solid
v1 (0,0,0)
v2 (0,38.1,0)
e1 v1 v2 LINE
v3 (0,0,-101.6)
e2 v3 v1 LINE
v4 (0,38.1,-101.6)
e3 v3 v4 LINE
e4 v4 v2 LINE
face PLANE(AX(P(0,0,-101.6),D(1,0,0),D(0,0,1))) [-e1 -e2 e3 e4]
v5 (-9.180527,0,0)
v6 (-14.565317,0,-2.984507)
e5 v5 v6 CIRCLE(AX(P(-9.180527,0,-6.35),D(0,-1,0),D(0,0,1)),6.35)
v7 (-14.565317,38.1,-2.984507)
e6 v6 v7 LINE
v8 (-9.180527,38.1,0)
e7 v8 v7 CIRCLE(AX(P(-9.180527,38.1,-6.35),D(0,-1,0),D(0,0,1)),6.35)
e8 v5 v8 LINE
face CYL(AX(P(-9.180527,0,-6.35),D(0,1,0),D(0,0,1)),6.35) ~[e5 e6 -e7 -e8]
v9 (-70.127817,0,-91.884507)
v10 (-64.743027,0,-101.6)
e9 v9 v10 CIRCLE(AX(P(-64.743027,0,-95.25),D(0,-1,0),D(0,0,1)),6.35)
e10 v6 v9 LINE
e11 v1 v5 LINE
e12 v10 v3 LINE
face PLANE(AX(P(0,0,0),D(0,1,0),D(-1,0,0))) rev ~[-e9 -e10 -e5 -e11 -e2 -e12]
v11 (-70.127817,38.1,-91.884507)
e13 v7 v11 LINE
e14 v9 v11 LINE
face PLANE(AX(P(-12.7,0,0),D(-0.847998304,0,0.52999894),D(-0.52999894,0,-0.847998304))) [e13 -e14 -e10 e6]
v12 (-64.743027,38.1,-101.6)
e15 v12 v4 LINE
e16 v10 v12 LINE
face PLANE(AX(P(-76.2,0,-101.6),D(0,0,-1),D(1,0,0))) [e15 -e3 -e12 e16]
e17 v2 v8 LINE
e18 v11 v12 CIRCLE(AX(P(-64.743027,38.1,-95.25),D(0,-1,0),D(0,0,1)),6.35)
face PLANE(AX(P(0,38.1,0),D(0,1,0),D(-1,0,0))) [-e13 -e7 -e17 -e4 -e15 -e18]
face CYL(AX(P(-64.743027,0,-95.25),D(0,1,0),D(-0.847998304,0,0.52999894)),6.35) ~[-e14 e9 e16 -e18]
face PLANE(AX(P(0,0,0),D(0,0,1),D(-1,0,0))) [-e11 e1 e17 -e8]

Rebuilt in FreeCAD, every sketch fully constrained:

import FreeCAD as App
import Part
import Sketcher
from FreeCAD import Vector
Q = App.Units.Quantity


def edges_at(feature, points):
    """Names of the edges that pass closest to the given points."""
    edges = feature.Shape.Edges
    near = lambda p: min(range(len(edges)), key=lambda i: edges[i].distToShape(Part.Vertex(*p))[0])
    return sorted({f"Edge{near(p) + 1}" for p in points})


def add_polygon(sketch, points):
    """Adds a closed chain of lines whose ends are joined by coincident constraints."""
    first, n = sketch.GeometryCount, len(points)
    for a, b in zip(points, points[1:] + points[:1]):
        sketch.addGeometry(Part.LineSegment(App.Vector(*a, 0), App.Vector(*b, 0)), False)
    for i in range(n):
        sketch.addConstraint(Sketcher.Constraint("Coincident", first + i, 2, first + (i + 1) % n, 1))

doc = App.newDocument("Part")
body = doc.addObject("PartDesign::Body", "Body")

# Sketch on XZ plane
sketch1 = body.newObject("Sketcher::SketchObject", "Sketch")
sketch1.AttachmentSupport = (doc.getObject("XZ_Plane"), [""])
sketch1.MapMode = "FlatFace"
add_polygon(sketch1, [(-13, 0), (0, 0), (0, -102), (-76, -102)])  # lines 0-3
sketch1.addConstraint(Sketcher.Constraint("Horizontal", 0))
sketch1.addConstraint(Sketcher.Constraint("Vertical", 1))
sketch1.addConstraint(Sketcher.Constraint("Horizontal", 2))
sketch1.addConstraint(Sketcher.Constraint("Coincident", 0, 2, -1, 1))
sketch1.addConstraint(Sketcher.Constraint("DistanceX", 2, 2, 2, 1, Q("3 in")))
sketch1.addConstraint(Sketcher.Constraint("DistanceY", 1, 2, 1, 1, Q("4 in")))
sketch1.addConstraint(Sketcher.Constraint("DistanceX", 0, 1, 0, 2, Q("0.5 in")))
pad1 = body.newObject("PartDesign::Pad", "Pad")
pad1.Profile = sketch1
pad1.Length = Q("1.5 in")
pad1.Reversed = True
doc.recompute()

fillet = body.newObject("PartDesign::Fillet", "Fillet")
fillet.Base = (pad1, edges_at(pad1, [(-12.7, 19.05, 0), (-76.2, 19.05, -101.6)]))
fillet.Radius = Q("0.25 in")

doc.recompute()
